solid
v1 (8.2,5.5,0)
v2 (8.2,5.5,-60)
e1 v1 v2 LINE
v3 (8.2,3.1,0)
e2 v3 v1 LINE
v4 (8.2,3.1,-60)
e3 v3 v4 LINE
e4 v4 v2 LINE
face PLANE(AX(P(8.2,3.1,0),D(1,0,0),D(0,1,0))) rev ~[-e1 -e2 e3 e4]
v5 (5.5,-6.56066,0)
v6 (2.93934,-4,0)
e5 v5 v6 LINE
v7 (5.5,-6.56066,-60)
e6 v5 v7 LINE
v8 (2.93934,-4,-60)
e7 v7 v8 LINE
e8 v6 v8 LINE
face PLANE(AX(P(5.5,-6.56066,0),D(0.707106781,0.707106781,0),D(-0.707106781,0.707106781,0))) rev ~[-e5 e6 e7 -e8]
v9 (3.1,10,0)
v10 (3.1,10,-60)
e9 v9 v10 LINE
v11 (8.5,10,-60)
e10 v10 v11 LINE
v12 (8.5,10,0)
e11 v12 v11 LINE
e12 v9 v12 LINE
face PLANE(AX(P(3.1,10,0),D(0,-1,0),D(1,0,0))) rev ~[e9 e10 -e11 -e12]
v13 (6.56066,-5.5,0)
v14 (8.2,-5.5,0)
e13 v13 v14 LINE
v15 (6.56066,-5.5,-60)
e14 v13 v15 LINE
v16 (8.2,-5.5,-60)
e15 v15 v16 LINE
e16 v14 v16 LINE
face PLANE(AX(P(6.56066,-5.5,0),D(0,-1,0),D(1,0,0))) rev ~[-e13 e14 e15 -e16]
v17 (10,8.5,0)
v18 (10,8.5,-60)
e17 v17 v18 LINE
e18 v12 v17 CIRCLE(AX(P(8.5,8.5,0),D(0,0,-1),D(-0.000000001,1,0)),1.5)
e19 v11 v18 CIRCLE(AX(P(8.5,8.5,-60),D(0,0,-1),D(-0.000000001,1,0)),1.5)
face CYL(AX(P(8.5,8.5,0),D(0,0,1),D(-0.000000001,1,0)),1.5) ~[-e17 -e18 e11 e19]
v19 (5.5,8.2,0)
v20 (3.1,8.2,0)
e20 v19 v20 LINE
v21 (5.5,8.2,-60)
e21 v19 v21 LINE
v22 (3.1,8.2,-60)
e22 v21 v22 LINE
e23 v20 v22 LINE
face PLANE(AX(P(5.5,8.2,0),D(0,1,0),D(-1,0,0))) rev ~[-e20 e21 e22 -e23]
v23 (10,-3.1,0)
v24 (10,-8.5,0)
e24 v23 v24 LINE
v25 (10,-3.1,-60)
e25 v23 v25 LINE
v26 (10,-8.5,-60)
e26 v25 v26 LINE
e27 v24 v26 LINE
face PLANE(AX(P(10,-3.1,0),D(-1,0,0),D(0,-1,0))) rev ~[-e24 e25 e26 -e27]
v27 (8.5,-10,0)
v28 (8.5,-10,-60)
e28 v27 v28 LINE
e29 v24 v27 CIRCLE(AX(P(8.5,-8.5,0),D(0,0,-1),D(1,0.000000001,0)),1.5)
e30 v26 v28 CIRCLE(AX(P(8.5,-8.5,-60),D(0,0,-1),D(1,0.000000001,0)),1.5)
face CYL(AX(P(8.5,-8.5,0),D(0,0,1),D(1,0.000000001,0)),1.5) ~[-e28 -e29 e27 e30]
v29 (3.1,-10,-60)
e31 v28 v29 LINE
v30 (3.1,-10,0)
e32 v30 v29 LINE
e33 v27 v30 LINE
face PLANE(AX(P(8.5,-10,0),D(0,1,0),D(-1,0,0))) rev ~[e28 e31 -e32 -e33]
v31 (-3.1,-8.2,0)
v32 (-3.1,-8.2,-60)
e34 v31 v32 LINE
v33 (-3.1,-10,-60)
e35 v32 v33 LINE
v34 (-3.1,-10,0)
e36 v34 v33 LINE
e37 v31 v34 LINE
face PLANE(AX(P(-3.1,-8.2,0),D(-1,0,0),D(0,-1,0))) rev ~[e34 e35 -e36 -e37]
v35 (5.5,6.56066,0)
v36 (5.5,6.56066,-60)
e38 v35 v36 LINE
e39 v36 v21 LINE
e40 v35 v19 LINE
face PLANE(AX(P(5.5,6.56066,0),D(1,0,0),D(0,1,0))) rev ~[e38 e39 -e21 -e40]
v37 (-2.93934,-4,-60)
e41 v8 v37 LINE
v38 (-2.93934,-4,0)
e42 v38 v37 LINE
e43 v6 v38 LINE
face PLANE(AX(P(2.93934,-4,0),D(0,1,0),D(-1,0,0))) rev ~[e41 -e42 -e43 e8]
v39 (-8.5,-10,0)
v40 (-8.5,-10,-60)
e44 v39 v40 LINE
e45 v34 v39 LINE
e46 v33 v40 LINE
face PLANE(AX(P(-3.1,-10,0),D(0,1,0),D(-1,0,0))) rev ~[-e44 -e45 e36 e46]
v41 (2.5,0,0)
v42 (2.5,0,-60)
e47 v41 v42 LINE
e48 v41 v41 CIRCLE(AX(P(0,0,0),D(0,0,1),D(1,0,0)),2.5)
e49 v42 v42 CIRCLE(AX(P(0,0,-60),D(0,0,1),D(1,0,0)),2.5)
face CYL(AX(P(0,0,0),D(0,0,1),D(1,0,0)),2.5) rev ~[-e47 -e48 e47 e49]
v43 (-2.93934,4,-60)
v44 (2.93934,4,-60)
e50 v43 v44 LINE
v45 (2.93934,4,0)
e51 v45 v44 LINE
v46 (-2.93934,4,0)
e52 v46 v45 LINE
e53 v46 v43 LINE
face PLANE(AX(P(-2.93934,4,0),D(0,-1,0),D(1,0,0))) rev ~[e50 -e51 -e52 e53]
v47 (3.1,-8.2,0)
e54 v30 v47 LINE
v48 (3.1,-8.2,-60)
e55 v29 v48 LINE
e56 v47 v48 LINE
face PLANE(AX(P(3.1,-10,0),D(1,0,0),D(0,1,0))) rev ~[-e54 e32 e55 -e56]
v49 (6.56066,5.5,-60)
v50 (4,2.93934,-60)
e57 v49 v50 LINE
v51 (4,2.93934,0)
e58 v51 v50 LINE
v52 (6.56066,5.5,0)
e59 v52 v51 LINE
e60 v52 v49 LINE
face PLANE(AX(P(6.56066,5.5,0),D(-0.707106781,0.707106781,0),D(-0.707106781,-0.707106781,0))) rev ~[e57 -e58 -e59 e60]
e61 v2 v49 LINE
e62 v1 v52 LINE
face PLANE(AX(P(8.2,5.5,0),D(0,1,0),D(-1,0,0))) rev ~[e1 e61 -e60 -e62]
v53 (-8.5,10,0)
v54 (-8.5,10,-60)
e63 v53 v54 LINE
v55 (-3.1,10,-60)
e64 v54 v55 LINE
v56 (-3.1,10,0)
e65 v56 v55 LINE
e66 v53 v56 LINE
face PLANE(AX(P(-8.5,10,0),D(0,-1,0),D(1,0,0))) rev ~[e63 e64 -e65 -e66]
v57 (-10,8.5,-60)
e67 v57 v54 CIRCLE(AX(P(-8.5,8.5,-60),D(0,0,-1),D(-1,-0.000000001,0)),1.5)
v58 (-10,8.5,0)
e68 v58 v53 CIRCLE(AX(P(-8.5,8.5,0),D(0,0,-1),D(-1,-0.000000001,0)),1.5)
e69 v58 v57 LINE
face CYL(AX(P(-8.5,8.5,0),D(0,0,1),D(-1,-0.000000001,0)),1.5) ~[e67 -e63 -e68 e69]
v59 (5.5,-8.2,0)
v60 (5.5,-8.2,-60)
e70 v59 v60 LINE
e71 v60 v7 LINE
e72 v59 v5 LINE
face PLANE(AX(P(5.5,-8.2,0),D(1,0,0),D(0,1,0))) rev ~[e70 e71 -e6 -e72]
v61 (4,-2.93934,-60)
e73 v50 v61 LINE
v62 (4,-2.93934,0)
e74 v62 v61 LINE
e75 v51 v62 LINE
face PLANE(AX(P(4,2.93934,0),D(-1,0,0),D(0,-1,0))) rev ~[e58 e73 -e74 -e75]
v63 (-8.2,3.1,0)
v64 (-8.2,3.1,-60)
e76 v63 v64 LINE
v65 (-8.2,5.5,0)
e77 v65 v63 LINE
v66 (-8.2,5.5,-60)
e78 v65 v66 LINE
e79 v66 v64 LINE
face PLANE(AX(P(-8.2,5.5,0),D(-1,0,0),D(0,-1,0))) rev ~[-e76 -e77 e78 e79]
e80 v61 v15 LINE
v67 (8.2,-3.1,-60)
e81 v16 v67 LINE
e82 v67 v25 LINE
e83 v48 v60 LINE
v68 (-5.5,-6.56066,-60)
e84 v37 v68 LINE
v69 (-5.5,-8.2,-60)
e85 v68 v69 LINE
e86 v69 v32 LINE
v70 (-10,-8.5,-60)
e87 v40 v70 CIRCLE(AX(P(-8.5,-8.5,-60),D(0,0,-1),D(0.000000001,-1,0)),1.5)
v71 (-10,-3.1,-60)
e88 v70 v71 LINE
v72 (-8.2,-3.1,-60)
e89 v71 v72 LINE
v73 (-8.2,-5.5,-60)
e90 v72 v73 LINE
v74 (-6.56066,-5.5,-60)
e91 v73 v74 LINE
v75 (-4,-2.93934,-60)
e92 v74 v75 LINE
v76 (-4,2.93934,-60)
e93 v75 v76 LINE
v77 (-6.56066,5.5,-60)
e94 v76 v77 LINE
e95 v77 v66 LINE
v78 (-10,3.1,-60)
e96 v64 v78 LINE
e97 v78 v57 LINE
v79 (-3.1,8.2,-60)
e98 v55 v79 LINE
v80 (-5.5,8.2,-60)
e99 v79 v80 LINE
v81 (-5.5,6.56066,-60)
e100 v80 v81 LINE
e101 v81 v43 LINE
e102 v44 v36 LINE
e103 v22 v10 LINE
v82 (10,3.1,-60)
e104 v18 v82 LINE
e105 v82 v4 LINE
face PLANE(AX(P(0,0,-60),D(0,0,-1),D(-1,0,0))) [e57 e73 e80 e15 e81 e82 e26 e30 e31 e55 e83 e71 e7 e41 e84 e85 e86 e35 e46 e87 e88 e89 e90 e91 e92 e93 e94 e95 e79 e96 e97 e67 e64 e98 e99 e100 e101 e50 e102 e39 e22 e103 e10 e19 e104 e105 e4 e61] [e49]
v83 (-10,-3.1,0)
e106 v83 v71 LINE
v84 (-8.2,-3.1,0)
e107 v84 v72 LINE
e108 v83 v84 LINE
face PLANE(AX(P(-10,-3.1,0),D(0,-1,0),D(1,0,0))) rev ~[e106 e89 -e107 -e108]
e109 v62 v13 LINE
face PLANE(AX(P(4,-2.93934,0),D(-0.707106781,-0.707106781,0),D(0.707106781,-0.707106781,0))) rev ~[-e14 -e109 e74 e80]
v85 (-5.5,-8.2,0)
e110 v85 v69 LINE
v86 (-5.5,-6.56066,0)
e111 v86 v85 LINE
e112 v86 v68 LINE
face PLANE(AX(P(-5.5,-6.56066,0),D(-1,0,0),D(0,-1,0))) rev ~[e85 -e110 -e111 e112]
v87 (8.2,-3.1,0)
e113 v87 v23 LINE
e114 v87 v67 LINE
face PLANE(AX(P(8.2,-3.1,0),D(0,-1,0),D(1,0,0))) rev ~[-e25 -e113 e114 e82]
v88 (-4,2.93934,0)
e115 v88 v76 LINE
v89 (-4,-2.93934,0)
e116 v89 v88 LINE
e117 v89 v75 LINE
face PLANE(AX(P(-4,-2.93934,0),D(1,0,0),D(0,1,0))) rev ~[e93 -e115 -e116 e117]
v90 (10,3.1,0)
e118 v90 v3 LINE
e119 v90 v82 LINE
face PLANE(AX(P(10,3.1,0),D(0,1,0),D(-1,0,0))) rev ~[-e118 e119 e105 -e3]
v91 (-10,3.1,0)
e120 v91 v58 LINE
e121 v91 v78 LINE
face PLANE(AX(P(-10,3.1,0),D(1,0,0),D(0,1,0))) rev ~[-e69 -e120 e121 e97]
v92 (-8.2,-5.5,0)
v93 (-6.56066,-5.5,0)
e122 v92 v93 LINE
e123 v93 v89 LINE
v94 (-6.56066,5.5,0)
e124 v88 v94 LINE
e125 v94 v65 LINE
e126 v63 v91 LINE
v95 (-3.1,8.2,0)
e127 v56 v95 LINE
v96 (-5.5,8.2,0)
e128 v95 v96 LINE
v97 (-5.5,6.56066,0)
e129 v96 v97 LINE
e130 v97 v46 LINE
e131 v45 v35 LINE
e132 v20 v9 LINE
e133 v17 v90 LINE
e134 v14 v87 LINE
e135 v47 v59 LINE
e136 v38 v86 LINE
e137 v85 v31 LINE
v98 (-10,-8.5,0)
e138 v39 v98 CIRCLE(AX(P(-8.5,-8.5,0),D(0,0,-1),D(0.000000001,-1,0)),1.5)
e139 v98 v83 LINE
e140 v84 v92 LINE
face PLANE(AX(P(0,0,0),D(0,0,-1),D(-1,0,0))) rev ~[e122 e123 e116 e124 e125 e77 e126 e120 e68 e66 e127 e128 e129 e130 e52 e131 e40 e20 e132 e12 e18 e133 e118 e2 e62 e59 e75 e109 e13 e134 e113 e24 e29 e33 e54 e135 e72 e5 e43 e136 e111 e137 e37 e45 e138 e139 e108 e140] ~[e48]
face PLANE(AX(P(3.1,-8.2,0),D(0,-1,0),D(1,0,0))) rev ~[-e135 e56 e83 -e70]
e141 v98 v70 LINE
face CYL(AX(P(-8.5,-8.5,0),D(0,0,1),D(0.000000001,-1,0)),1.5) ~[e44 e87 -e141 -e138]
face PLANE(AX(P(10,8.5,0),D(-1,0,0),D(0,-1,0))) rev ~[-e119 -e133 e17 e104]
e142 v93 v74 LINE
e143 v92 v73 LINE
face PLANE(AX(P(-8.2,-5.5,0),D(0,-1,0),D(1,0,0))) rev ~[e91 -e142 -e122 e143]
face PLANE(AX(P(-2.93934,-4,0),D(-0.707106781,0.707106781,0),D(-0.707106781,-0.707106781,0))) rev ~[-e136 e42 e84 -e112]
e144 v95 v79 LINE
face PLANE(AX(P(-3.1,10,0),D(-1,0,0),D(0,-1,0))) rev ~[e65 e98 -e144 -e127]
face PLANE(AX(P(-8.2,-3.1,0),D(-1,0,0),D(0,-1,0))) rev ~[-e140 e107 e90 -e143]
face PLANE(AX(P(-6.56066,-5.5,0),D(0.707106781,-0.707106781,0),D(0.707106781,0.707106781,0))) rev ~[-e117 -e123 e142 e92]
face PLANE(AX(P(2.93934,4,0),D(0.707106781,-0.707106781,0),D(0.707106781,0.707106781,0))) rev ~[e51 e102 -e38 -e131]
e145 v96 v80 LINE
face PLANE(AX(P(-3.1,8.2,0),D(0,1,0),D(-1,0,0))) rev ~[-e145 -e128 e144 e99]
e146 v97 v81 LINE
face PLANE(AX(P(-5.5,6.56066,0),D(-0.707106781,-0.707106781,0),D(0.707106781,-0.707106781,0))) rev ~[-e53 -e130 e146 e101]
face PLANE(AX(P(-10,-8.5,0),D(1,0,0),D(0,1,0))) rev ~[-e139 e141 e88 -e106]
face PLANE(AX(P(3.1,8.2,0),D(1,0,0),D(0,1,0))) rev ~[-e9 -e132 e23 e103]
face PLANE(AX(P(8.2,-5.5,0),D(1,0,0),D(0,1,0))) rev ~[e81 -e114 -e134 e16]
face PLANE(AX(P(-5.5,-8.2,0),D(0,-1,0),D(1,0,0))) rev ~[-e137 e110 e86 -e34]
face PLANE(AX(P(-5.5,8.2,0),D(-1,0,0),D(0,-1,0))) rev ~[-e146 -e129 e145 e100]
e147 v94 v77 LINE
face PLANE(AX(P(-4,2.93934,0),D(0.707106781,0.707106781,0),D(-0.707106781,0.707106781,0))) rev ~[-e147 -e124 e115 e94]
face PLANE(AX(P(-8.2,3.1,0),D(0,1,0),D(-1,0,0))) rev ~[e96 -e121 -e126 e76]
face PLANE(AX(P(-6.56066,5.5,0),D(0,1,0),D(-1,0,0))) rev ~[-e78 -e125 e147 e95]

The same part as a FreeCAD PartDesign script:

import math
import FreeCAD as App
import Part
import Sketcher
Q = App.Units.Quantity

doc = App.newDocument("Part")
body = doc.addObject("PartDesign::Body", "Body")

# Sketch on XY plane
sketch1 = doc.addObject("Sketcher::SketchObject", "Sketch")
body.addObject(sketch1)
sketch1.AttachmentSupport = (doc.XY_Plane, [""])
sketch1.MapMode = "FlatFace"
sketch1.addGeometry([
    Part.LineSegment(App.Vector(5.5, -6.6, 0), App.Vector(5.5, -8.2, 0)),  # 0
    Part.LineSegment(App.Vector(5.5, -8.2, 0), App.Vector(3.1, -8.2, 0)),  # 1
    Part.LineSegment(App.Vector(3.1, -8.2, 0), App.Vector(3.1, -10, 0)),  # 2
    Part.LineSegment(App.Vector(3.1, -10, 0), App.Vector(8.5, -10, 0)),  # 3
    Part.ArcOfCircle(Part.Circle(App.Vector(8.5, -8.5, 0), App.Vector(0, 0, 1), 1.5), math.radians(-90), math.radians(0)),  # 4
    Part.LineSegment(App.Vector(10, -8.5, 0), App.Vector(10, -3.1, 0)),  # 5
    Part.LineSegment(App.Vector(10, -3.1, 0), App.Vector(8.2, -3.1, 0)),  # 6
    Part.LineSegment(App.Vector(8.2, -3.1, 0), App.Vector(8.2, -5.5, 0)),  # 7
    Part.LineSegment(App.Vector(8.2, -5.5, 0), App.Vector(6.6, -5.5, 0)),  # 8
    Part.LineSegment(App.Vector(6.6, -5.5, 0), App.Vector(4, -2.9, 0)),  # 9
    Part.LineSegment(App.Vector(4, -2.9, 0), App.Vector(4, 2.9, 0)),  # 10
    Part.LineSegment(App.Vector(4, 2.9, 0), App.Vector(6.6, 5.5, 0)),  # 11
    Part.LineSegment(App.Vector(6.6, 5.5, 0), App.Vector(8.2, 5.5, 0)),  # 12
    Part.LineSegment(App.Vector(8.2, 5.5, 0), App.Vector(8.2, 3.1, 0)),  # 13
    Part.LineSegment(App.Vector(8.2, 3.1, 0), App.Vector(10, 3.1, 0)),  # 14
    Part.LineSegment(App.Vector(10, 3.1, 0), App.Vector(10, 8.5, 0)),  # 15
    Part.ArcOfCircle(Part.Circle(App.Vector(8.5, 8.5, 0), App.Vector(0, 0, 1), 1.5), math.radians(0), math.radians(90)),  # 16
    Part.LineSegment(App.Vector(8.5, 10, 0), App.Vector(3.1, 10, 0)),  # 17
    Part.LineSegment(App.Vector(3.1, 10, 0), App.Vector(3.1, 8.2, 0)),  # 18
    Part.LineSegment(App.Vector(3.1, 8.2, 0), App.Vector(5.5, 8.2, 0)),  # 19
    Part.LineSegment(App.Vector(5.5, 8.2, 0), App.Vector(5.5, 6.6, 0)),  # 20
    Part.LineSegment(App.Vector(5.5, 6.6, 0), App.Vector(2.9, 4, 0)),  # 21
    Part.LineSegment(App.Vector(2.9, 4, 0), App.Vector(-2.9, 4, 0)),  # 22
    Part.LineSegment(App.Vector(-2.9, 4, 0), App.Vector(-5.5, 6.6, 0)),  # 23
    Part.LineSegment(App.Vector(-5.5, 6.6, 0), App.Vector(-5.5, 8.2, 0)),  # 24
    Part.LineSegment(App.Vector(-5.5, 8.2, 0), App.Vector(-3.1, 8.2, 0)),  # 25
    Part.LineSegment(App.Vector(-3.1, 8.2, 0), App.Vector(-3.1, 10, 0)),  # 26
    Part.LineSegment(App.Vector(-3.1, 10, 0), App.Vector(-8.5, 10, 0)),  # 27
    Part.ArcOfCircle(Part.Circle(App.Vector(-8.5, 8.5, 0), App.Vector(0, 0, 1), 1.5), math.radians(90), math.radians(180)),  # 28
    Part.LineSegment(App.Vector(-10, 8.5, 0), App.Vector(-10, 3.1, 0)),  # 29
    Part.LineSegment(App.Vector(-10, 3.1, 0), App.Vector(-8.2, 3.1, 0)),  # 30
    Part.LineSegment(App.Vector(-8.2, 3.1, 0), App.Vector(-8.2, 5.5, 0)),  # 31
    Part.LineSegment(App.Vector(-8.2, 5.5, 0), App.Vector(-6.6, 5.5, 0)),  # 32
    Part.LineSegment(App.Vector(-6.6, 5.5, 0), App.Vector(-4, 2.9, 0)),  # 33
    Part.LineSegment(App.Vector(-4, 2.9, 0), App.Vector(-4, -2.9, 0)),  # 34
    Part.LineSegment(App.Vector(-4, -2.9, 0), App.Vector(-6.6, -5.5, 0)),  # 35
    Part.LineSegment(App.Vector(-6.6, -5.5, 0), App.Vector(-8.2, -5.5, 0)),  # 36
    Part.LineSegment(App.Vector(-8.2, -5.5, 0), App.Vector(-8.2, -3.1, 0)),  # 37
    Part.LineSegment(App.Vector(-8.2, -3.1, 0), App.Vector(-10, -3.1, 0)),  # 38
    Part.LineSegment(App.Vector(-10, -3.1, 0), App.Vector(-10, -8.5, 0)),  # 39
    Part.ArcOfCircle(Part.Circle(App.Vector(-8.5, -8.5, 0), App.Vector(0, 0, 1), 1.5), math.radians(180), math.radians(270)),  # 40
    Part.LineSegment(App.Vector(-8.5, -10, 0), App.Vector(-3.1, -10, 0)),  # 41
    Part.LineSegment(App.Vector(-3.1, -10, 0), App.Vector(-3.1, -8.2, 0)),  # 42
    Part.LineSegment(App.Vector(-3.1, -8.2, 0), App.Vector(-5.5, -8.2, 0)),  # 43
    Part.LineSegment(App.Vector(-5.5, -8.2, 0), App.Vector(-5.5, -6.6, 0)),  # 44
    Part.LineSegment(App.Vector(-5.5, -6.6, 0), App.Vector(-2.9, -4, 0)),  # 45
    Part.LineSegment(App.Vector(-2.9, -4, 0), App.Vector(2.9, -4, 0)),  # 46
    Part.LineSegment(App.Vector(2.9, -4, 0), App.Vector(5.5, -6.6, 0)),  # 47
    Part.Circle(App.Vector(0, 0, 0), App.Vector(0, 0, 1), 2.5),  # 48
], False)
sketch1.addConstraint([
    Sketcher.Constraint("Coincident", 0, 2, 1, 1),
    Sketcher.Constraint("Coincident", 1, 2, 2, 1),
    Sketcher.Constraint("Coincident", 2, 2, 3, 1),
    Sketcher.Constraint("Tangent", 3, 2, 4, 1),
    Sketcher.Constraint("Tangent", 4, 2, 5, 1),
    Sketcher.Constraint("Coincident", 5, 2, 6, 1),
    Sketcher.Constraint("Coincident", 6, 2, 7, 1),
    Sketcher.Constraint("Coincident", 7, 2, 8, 1),
    Sketcher.Constraint("Coincident", 8, 2, 9, 1),
    Sketcher.Constraint("Coincident", 9, 2, 10, 1),
    Sketcher.Constraint("Coincident", 10, 2, 11, 1),
    Sketcher.Constraint("Coincident", 11, 2, 12, 1),
    Sketcher.Constraint("Coincident", 12, 2, 13, 1),
    Sketcher.Constraint("Coincident", 13, 2, 14, 1),
    Sketcher.Constraint("Coincident", 14, 2, 15, 1),
    Sketcher.Constraint("Tangent", 15, 2, 16, 1),
    Sketcher.Constraint("Tangent", 16, 2, 17, 1),
    Sketcher.Constraint("Coincident", 17, 2, 18, 1),
    Sketcher.Constraint("Coincident", 18, 2, 19, 1),
    Sketcher.Constraint("Coincident", 19, 2, 20, 1),
    Sketcher.Constraint("Coincident", 20, 2, 21, 1),
    Sketcher.Constraint("Coincident", 21, 2, 22, 1),
    Sketcher.Constraint("Coincident", 22, 2, 23, 1),
    Sketcher.Constraint("Coincident", 23, 2, 24, 1),
    Sketcher.Constraint("Coincident", 24, 2, 25, 1),
    Sketcher.Constraint("Coincident", 25, 2, 26, 1),
    Sketcher.Constraint("Coincident", 26, 2, 27, 1),
    Sketcher.Constraint("Tangent", 27, 2, 28, 1),
    Sketcher.Constraint("Tangent", 28, 2, 29, 1),
    Sketcher.Constraint("Coincident", 29, 2, 30, 1),
    Sketcher.Constraint("Coincident", 30, 2, 31, 1),
    Sketcher.Constraint("Coincident", 31, 2, 32, 1),
    Sketcher.Constraint("Coincident", 32, 2, 33, 1),
    Sketcher.Constraint("Coincident", 33, 2, 34, 1),
    Sketcher.Constraint("Coincident", 34, 2, 35, 1),
    Sketcher.Constraint("Coincident", 35, 2, 36, 1),
    Sketcher.Constraint("Coincident", 36, 2, 37, 1),
    Sketcher.Constraint("Coincident", 37, 2, 38, 1),
    Sketcher.Constraint("Coincident", 38, 2, 39, 1),
    Sketcher.Constraint("Tangent", 39, 2, 40, 1),
    Sketcher.Constraint("Tangent", 40, 2, 41, 1),
    Sketcher.Constraint("Coincident", 41, 2, 42, 1),
    Sketcher.Constraint("Coincident", 42, 2, 43, 1),
    Sketcher.Constraint("Coincident", 43, 2, 44, 1),
    Sketcher.Constraint("Coincident", 44, 2, 45, 1),
    Sketcher.Constraint("Coincident", 45, 2, 46, 1),
    Sketcher.Constraint("Coincident", 46, 2, 47, 1),
    Sketcher.Constraint("Coincident", 47, 2, 0, 1),
    Sketcher.Constraint("Vertical", 0),
    Sketcher.Constraint("Horizontal", 1),
    Sketcher.Constraint("Vertical", 2),
    Sketcher.Constraint("Horizontal", 3),
    Sketcher.Constraint("Vertical", 5),
    Sketcher.Constraint("Horizontal", 6),
    Sketcher.Constraint("Vertical", 7),
    Sketcher.Constraint("Horizontal", 8),
    Sketcher.Constraint("Vertical", 10),
    Sketcher.Constraint("Horizontal", 12),
    Sketcher.Constraint("Vertical", 13),
    Sketcher.Constraint("Horizontal", 14),
    Sketcher.Constraint("Vertical", 15),
    Sketcher.Constraint("Horizontal", 17),
    Sketcher.Constraint("Vertical", 18),
    Sketcher.Constraint("Horizontal", 19),
    Sketcher.Constraint("Vertical", 20),
    Sketcher.Constraint("Horizontal", 22),
    Sketcher.Constraint("Vertical", 24),
    Sketcher.Constraint("Horizontal", 25),
    Sketcher.Constraint("Vertical", 26),
    Sketcher.Constraint("Horizontal", 27),
    Sketcher.Constraint("Vertical", 29),
    Sketcher.Constraint("Horizontal", 30),
    Sketcher.Constraint("Vertical", 31),
    Sketcher.Constraint("Horizontal", 32),
    Sketcher.Constraint("Vertical", 34),
    Sketcher.Constraint("Horizontal", 36),
    Sketcher.Constraint("Vertical", 37),
    Sketcher.Constraint("Horizontal", 38),
    Sketcher.Constraint("Vertical", 39),
    Sketcher.Constraint("Horizontal", 41),
    Sketcher.Constraint("Vertical", 42),
    Sketcher.Constraint("Horizontal", 43),
    Sketcher.Constraint("Vertical", 44),
    Sketcher.Constraint("Horizontal", 46),
    Sketcher.Constraint("Coincident", 48, 3, -1, 1),
    Sketcher.Constraint("Equal", 4, 16),
    Sketcher.Constraint("Equal", 16, 28),
    Sketcher.Constraint("Equal", 28, 40),
    Sketcher.Constraint("Symmetric", 4, 3, 28, 3, -1, 1),
    Sketcher.Constraint("Symmetric", 16, 3, 40, 3, -1, 1),
    Sketcher.Constraint("Symmetric", 0, 2, 24, 2, -1, 1),
    Sketcher.Constraint("Symmetric", 6, 2, 30, 2, -1, 1),
    Sketcher.Constraint("Symmetric", 8, 2, 32, 2, -1, 1),
    Sketcher.Constraint("Symmetric", 9, 2, 33, 2, -1, 1),
    Sketcher.Constraint("Symmetric", 11, 2, 35, 2, -1, 1),
    Sketcher.Constraint("Symmetric", 13, 2, 37, 2, -1, 1),
    Sketcher.Constraint("Symmetric", 18, 2, 42, 2, -1, 1),
    Sketcher.Constraint("Symmetric", 20, 2, 44, 2, -1, 1),
    Sketcher.Constraint("Symmetric", 21, 2, 45, 2, -1, 1),
    Sketcher.Constraint("Symmetric", 16, 3, 28, 3, -2),
    Sketcher.Constraint("Symmetric", 20, 2, 23, 2, -2),
    Sketcher.Constraint("Symmetric", 18, 2, 25, 2, -2),
    Sketcher.Constraint("Symmetric", 13, 2, 30, 2, -2),
    Sketcher.Constraint("Symmetric", 11, 2, 32, 2, -2),
    Sketcher.Constraint("Perpendicular", 9, 11),
    Sketcher.Constraint("Parallel", 11, 21),
    Sketcher.Constraint("Perpendicular", 21, 23),
    Sketcher.Constraint("Perpendicular", 33, 35),
    Sketcher.Constraint("Perpendicular", 45, 47),
    Sketcher.Constraint("Horizontal", 10, 2, 33, 2),
    Sketcher.Constraint("Horizontal", 44, 2, 47, 2),
    Sketcher.Constraint("Vertical", 2, 2, 17, 2),
    Sketcher.Constraint("Equal", 36, 0),
    Sketcher.Constraint("Equal", 38, 2),
    Sketcher.Constraint("Equal", 41, 5),
    Sketcher.Constraint("Equal", 43, 7),
    Sketcher.Constraint("Equal", 46, 10),
    Sketcher.Constraint("Equal", 11, 21),
    Sketcher.Constraint("Diameter", 48, Q("5 mm")),
    Sketcher.Constraint("Radius", 4, Q("1.5 mm")),
    Sketcher.Constraint("DistanceX", 1, 2, 1, 1, Q("2.4 mm")),
    Sketcher.Constraint("DistanceX", 3, 1, 3, 2, Q("5.4 mm")),
    Sketcher.Constraint("DistanceX", 6, 2, 6, 1, Q("1.8 mm")),
    Sketcher.Constraint("DistanceY", 2, 2, -1, 1, Q("10 mm")),
    Sketcher.Constraint("DistanceX", -1, 1, 9, 2, Q("4 mm")),
    Sketcher.Constraint("DistanceX", 8, 2, 8, 1, Q("1.63934 mm")),
])
pad1 = doc.addObject("PartDesign::Pad", "Pad")
body.addObject(pad1)
pad1.Profile = sketch1
pad1.Length = 60
pad1.Reversed = True

doc.recompute()
